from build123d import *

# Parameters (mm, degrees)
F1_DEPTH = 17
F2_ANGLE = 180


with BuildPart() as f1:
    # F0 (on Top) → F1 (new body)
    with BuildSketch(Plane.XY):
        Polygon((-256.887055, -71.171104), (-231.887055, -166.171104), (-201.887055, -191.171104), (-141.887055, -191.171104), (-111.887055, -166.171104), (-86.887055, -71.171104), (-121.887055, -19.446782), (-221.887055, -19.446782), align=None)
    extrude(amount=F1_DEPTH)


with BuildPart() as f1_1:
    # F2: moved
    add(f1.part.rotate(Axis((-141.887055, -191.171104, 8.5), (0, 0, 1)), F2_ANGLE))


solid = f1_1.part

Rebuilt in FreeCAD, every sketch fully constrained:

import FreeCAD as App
import Part
import Sketcher

V = App.Vector

doc = App.newDocument("Part")
body = doc.addObject("PartDesign::Body", "Body")

# Sketch on XY plane
sketch1 = body.newObject("Sketcher::SketchObject", "Sketch")
sketch1.AttachmentSupport = (doc.getObject("XY_Plane"), [""])
sketch1.MapMode = "FlatFace"
sketch1.addGeometry(Part.LineSegment(V(-256.887055, -71.171104, 0), V(-231.887055, -166.171104, 0)), False)
sketch1.addGeometry(Part.LineSegment(V(-231.887055, -166.171104, 0), V(-201.887055, -191.171104, 0)), False)
sketch1.addGeometry(Part.LineSegment(V(-201.887055, -191.171104, 0), V(-141.887055, -191.171104, 0)), False)
sketch1.addGeometry(Part.LineSegment(V(-141.887055, -191.171104, 0), V(-111.887055, -166.171104, 0)), False)
sketch1.addGeometry(Part.LineSegment(V(-111.887055, -166.171104, 0), V(-86.887055, -71.171104, 0)), False)
sketch1.addGeometry(Part.LineSegment(V(-86.887055, -71.171104, 0), V(-121.887055, -19.446782, 0)), False)
sketch1.addGeometry(Part.LineSegment(V(-121.887055, -19.446782, 0), V(-221.887055, -19.446782, 0)), False)
sketch1.addGeometry(Part.LineSegment(V(-221.887055, -19.446782, 0), V(-256.887055, -71.171104, 0)), False)
sketch1.addConstraint(Sketcher.Constraint("Coincident", 0, 2, 1, 1))
sketch1.addConstraint(Sketcher.Constraint("Coincident", 1, 2, 2, 1))
sketch1.addConstraint(Sketcher.Constraint("Coincident", 2, 2, 3, 1))
sketch1.addConstraint(Sketcher.Constraint("Coincident", 3, 2, 4, 1))
sketch1.addConstraint(Sketcher.Constraint("Coincident", 4, 2, 5, 1))
sketch1.addConstraint(Sketcher.Constraint("Coincident", 5, 2, 6, 1))
sketch1.addConstraint(Sketcher.Constraint("Coincident", 6, 2, 7, 1))
sketch1.addConstraint(Sketcher.Constraint("Coincident", 7, 2, 0, 1))
sketch1.addConstraint(Sketcher.Constraint("Horizontal", 2))
sketch1.addConstraint(Sketcher.Constraint("Horizontal", 6))
sketch1.addConstraint(Sketcher.Constraint("Horizontal", 0, 2, 3, 2))
sketch1.addConstraint(Sketcher.Constraint("Horizontal", 4, 2, 7, 2))
sketch1.addConstraint(Sketcher.Constraint("Equal", 1, 3))
sketch1.addConstraint(Sketcher.Constraint("Equal", 0, 4))
sketch1.addConstraint(Sketcher.Constraint("Equal", 5, 7))
sketch1.addConstraint(Sketcher.Constraint("DistanceX", 2, 1, 2, 2, 60.0))
sketch1.addConstraint(Sketcher.Constraint("DistanceX", 6, 2, 6, 1, 100.0))
sketch1.addConstraint(Sketcher.Constraint("DistanceX", 0, 2, 1, 2, 30.0))
sketch1.addConstraint(Sketcher.Constraint("DistanceY", 1, 2, 0, 2, 25.0))
sketch1.addConstraint(Sketcher.Constraint("DistanceX", 3, 2, 4, 2, 25.0))
sketch1.addConstraint(Sketcher.Constraint("DistanceY", 3, 2, 4, 2, 95.0))
sketch1.addConstraint(Sketcher.Constraint("DistanceY", 5, 2, -1, 1, 19.446782))
sketch1.addConstraint(Sketcher.Constraint("Distance", 5, 62.453226))
sketch1.addConstraint(Sketcher.Constraint("DistanceX", 0, 2, -1, 1, 231.887055))
pad1 = body.newObject("PartDesign::Pad", "Pad")
pad1.Profile = sketch1
pad1.Length = 17
body2 = doc.addObject("PartDesign::Body", "Body001")
doc.recompute()

body.Placement = App.Placement(V(-283.77411, -382.342208, 0), App.Rotation(V(0, 0, 1), 180))
boolean = body2.newObject("PartDesign::Boolean", "Boolean")
boolean.Type = "Fuse"
boolean.addObjects([body])

doc.recompute()
